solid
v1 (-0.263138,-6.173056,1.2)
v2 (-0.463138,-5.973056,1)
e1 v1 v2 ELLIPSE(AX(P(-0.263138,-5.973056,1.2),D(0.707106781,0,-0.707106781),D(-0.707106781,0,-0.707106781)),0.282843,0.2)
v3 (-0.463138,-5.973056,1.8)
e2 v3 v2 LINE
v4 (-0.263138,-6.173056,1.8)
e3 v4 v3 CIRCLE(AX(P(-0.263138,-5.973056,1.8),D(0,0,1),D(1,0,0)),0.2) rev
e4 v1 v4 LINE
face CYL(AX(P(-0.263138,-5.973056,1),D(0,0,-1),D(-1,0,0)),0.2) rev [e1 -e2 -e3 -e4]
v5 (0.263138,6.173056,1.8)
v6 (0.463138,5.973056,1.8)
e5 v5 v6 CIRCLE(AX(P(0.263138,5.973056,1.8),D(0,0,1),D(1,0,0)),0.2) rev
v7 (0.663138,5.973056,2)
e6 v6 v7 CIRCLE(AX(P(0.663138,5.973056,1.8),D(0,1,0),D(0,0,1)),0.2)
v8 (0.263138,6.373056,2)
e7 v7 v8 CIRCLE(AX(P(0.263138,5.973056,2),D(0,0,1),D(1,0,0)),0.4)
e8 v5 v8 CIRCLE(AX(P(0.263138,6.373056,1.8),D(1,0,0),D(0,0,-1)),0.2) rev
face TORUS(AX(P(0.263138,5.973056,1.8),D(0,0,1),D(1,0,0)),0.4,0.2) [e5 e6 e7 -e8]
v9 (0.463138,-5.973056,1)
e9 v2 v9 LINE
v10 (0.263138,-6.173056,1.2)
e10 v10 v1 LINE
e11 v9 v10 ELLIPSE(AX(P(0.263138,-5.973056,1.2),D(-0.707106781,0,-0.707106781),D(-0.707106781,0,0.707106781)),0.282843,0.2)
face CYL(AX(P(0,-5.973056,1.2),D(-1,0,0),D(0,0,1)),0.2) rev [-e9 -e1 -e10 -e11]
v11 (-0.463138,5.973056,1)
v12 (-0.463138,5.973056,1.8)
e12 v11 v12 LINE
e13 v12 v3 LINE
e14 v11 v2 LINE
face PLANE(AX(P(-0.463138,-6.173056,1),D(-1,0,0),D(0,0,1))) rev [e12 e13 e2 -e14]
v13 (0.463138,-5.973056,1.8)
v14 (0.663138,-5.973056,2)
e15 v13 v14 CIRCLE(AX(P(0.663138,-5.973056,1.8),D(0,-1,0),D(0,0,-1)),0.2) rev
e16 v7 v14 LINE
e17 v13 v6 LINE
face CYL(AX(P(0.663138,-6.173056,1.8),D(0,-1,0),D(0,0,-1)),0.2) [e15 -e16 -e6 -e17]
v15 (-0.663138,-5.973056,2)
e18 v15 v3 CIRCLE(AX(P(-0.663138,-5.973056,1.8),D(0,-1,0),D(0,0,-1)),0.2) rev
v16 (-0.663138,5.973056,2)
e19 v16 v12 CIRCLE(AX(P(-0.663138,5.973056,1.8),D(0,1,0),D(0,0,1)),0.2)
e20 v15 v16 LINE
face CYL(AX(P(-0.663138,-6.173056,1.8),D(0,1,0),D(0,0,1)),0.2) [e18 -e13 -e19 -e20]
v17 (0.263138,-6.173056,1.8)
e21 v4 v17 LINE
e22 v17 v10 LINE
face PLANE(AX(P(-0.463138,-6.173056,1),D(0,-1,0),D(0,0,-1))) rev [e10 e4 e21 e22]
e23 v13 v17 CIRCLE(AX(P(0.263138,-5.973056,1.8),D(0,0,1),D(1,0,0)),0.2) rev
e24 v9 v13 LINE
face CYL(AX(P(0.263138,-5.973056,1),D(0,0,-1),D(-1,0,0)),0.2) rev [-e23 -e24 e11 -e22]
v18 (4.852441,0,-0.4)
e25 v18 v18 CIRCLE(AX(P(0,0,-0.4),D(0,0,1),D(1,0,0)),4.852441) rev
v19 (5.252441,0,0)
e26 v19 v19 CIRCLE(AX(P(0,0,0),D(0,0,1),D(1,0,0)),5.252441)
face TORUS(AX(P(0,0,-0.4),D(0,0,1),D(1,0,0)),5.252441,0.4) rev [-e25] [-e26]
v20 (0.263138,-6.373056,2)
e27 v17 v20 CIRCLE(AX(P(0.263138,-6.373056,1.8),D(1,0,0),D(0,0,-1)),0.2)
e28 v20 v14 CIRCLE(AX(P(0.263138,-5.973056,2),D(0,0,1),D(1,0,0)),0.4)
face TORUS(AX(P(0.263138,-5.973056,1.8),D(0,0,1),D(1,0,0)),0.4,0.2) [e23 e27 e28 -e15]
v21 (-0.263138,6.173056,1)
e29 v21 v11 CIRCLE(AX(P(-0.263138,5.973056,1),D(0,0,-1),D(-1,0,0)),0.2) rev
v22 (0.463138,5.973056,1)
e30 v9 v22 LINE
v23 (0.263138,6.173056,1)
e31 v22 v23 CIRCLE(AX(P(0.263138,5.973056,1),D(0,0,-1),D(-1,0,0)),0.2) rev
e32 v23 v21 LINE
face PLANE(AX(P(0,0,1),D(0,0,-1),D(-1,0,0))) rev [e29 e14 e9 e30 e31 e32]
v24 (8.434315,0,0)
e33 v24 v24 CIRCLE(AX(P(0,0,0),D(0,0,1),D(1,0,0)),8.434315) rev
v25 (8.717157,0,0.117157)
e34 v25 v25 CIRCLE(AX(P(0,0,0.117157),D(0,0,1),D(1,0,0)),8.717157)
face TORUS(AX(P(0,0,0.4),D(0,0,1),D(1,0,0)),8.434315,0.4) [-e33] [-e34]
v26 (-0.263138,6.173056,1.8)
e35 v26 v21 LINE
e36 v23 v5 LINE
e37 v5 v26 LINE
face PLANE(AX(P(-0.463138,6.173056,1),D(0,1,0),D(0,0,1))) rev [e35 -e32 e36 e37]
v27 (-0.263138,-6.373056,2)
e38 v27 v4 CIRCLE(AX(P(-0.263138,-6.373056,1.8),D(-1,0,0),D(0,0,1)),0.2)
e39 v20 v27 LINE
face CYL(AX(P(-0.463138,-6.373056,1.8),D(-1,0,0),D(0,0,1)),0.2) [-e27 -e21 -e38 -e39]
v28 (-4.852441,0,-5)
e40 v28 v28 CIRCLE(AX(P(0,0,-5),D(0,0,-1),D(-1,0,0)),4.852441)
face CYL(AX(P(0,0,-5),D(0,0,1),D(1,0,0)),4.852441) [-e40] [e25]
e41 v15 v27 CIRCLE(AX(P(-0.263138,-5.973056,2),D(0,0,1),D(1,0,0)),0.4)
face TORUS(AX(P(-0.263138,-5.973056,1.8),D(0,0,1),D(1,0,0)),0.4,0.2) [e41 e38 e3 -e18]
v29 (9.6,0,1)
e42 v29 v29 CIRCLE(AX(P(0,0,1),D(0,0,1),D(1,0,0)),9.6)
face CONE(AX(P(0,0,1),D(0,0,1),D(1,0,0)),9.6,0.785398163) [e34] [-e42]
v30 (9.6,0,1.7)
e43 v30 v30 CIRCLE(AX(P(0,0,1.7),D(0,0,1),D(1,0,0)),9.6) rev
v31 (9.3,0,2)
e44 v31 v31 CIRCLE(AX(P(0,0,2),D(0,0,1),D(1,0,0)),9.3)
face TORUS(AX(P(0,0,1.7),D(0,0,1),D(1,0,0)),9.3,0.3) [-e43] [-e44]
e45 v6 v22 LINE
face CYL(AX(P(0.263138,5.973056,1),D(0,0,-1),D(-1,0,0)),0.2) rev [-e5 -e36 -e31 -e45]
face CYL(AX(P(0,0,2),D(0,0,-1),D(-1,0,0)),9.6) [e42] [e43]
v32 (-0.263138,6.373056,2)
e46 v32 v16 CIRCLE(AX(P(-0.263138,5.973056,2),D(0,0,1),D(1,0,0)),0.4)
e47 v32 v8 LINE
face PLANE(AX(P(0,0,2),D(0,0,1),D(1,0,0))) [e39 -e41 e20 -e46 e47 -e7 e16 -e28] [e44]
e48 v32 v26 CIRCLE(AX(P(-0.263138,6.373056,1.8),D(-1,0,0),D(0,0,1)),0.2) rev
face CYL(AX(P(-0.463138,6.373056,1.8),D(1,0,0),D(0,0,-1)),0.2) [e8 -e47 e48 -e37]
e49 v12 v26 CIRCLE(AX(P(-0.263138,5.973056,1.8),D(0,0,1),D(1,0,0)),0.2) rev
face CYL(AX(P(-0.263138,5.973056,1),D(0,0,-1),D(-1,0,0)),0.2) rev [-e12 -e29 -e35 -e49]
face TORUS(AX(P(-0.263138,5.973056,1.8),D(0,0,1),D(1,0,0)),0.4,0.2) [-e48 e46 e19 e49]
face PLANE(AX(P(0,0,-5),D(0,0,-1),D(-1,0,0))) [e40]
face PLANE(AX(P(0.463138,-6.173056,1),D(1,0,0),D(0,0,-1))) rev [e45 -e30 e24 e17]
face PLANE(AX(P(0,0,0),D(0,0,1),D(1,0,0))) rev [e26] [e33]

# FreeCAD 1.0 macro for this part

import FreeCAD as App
import Part
import Sketcher

V = App.Vector
Q = App.Units.Quantity


def edges_at(feature, points):
    """Names of the edges that pass closest to the given points."""
    edges = feature.Shape.Edges
    near = lambda p: min(range(len(edges)), key=lambda i: edges[i].distToShape(Part.Vertex(*p))[0])
    return sorted({f"Edge{near(p) + 1}" for p in points})


def add_polygon(sketch, points):
    """Adds a closed chain of lines whose ends are joined by coincident constraints."""
    first, n = sketch.GeometryCount, len(points)
    for a, b in zip(points, points[1:] + points[:1]):
        sketch.addGeometry(Part.LineSegment(App.Vector(*a, 0), App.Vector(*b, 0)), False)
    for i in range(n):
        sketch.addConstraint(Sketcher.Constraint("Coincident", first + i, 2, first + (i + 1) % n, 1))

doc = App.newDocument("Part")
body = doc.addObject("PartDesign::Body", "Body")

# Sketch on XY plane
sketch1 = body.newObject("Sketcher::SketchObject", "Sketch")
sketch1.AttachmentSupport = (doc.getObject("XY_Plane"), [""])
sketch1.MapMode = "FlatFace"
sketch1.addGeometry(Part.Circle(V(0, 0, 0), V(0, 0, 1), 10), False)
sketch1.addConstraint([
    Sketcher.Constraint("Coincident", 0, 3, -1, 1),
    Sketcher.Constraint("Diameter", 0, Q("19.2 mm")),
])
pad1 = body.newObject("PartDesign::Pad", "Pad")
pad1.Profile = sketch1
pad1.Length = 2
doc.recompute()

chamfer = body.newObject("PartDesign::Chamfer", "Chamfer")
chamfer.Base = (pad1, edges_at(pad1, [(-9.6, 0, 0)]))
chamfer.Size = 1
doc.recompute()

fillet = body.newObject("PartDesign::Fillet", "Fillet")
fillet.Base = (chamfer, edges_at(chamfer, [(-9.6, 0, 2)]))
fillet.Radius = 0.3

# Sketch on XY plane
sketch2 = body.newObject("Sketcher::SketchObject", "Sketch001")
sketch2.AttachmentSupport = (doc.getObject("XY_Plane"), [""])
sketch2.MapMode = "FlatFace"
sketch2.AttachmentOffset = App.Placement(V(0, 0, 2), App.Rotation())
add_polygon(sketch2, [(-0.5, 6.2), (-0.5, -6.2), (0.5, -6.2), (0.5, 6.2)])  # lines 0-3
sketch2.addConstraint([
    Sketcher.Constraint("Vertical", 0),
    Sketcher.Constraint("Horizontal", 1),
    Sketcher.Constraint("Vertical", 2),
    Sketcher.Constraint("Horizontal", 3),
    Sketcher.Constraint("Symmetric", 0, 2, 2, 2, -1, 1),
    Sketcher.Constraint("DistanceX", 1, 1, 1, 2, Q("0.926276 mm")),
    Sketcher.Constraint("DistanceY", 0, 2, 0, 1, Q("12.346112 mm")),
])
pocket1 = body.newObject("PartDesign::Pocket", "Pocket")
pocket1.Profile = sketch2
pocket1.Length = 1
doc.recompute()

fillet2 = body.newObject("PartDesign::Fillet", "Fillet001")
fillet2.Base = (pocket1, edges_at(pocket1, [
    (0.463, 6.173, 1.5),
    (0, -6.173, 1),
    (0.463, -6.173, 1.5),
    (-0.463, -6.173, 1.5),
    (-0.463, 6.173, 1.5),
    (0.463, 0, 2),
    (0, 6.173, 2),
    (-0.463, 0, 2),
    (0, -6.173, 2),
]))
fillet2.Radius = 0.2

# Sketch on XY plane
sketch3 = body.newObject("Sketcher::SketchObject", "Sketch002")
sketch3.AttachmentSupport = (doc.getObject("XY_Plane"), [""])
sketch3.MapMode = "FlatFace"
sketch3.addGeometry(Part.Circle(V(0, 0, 0), V(0, 0, 1), 4.9), False)
sketch3.addConstraint([
    Sketcher.Constraint("Coincident", 0, 3, -1, 1),
    Sketcher.Constraint("Diameter", 0, Q("9.704882 mm")),
])
pad2 = body.newObject("PartDesign::Pad", "Pad001")
pad2.Profile = sketch3
pad2.Length = 5
pad2.Reversed = True
doc.recompute()

fillet3 = body.newObject("PartDesign::Fillet", "Fillet002")
fillet3.Base = (pad2, edges_at(pad2, [(4.852, 0, 0), (-8.6, 0, 0)]))
fillet3.Radius = 0.4

doc.recompute()
